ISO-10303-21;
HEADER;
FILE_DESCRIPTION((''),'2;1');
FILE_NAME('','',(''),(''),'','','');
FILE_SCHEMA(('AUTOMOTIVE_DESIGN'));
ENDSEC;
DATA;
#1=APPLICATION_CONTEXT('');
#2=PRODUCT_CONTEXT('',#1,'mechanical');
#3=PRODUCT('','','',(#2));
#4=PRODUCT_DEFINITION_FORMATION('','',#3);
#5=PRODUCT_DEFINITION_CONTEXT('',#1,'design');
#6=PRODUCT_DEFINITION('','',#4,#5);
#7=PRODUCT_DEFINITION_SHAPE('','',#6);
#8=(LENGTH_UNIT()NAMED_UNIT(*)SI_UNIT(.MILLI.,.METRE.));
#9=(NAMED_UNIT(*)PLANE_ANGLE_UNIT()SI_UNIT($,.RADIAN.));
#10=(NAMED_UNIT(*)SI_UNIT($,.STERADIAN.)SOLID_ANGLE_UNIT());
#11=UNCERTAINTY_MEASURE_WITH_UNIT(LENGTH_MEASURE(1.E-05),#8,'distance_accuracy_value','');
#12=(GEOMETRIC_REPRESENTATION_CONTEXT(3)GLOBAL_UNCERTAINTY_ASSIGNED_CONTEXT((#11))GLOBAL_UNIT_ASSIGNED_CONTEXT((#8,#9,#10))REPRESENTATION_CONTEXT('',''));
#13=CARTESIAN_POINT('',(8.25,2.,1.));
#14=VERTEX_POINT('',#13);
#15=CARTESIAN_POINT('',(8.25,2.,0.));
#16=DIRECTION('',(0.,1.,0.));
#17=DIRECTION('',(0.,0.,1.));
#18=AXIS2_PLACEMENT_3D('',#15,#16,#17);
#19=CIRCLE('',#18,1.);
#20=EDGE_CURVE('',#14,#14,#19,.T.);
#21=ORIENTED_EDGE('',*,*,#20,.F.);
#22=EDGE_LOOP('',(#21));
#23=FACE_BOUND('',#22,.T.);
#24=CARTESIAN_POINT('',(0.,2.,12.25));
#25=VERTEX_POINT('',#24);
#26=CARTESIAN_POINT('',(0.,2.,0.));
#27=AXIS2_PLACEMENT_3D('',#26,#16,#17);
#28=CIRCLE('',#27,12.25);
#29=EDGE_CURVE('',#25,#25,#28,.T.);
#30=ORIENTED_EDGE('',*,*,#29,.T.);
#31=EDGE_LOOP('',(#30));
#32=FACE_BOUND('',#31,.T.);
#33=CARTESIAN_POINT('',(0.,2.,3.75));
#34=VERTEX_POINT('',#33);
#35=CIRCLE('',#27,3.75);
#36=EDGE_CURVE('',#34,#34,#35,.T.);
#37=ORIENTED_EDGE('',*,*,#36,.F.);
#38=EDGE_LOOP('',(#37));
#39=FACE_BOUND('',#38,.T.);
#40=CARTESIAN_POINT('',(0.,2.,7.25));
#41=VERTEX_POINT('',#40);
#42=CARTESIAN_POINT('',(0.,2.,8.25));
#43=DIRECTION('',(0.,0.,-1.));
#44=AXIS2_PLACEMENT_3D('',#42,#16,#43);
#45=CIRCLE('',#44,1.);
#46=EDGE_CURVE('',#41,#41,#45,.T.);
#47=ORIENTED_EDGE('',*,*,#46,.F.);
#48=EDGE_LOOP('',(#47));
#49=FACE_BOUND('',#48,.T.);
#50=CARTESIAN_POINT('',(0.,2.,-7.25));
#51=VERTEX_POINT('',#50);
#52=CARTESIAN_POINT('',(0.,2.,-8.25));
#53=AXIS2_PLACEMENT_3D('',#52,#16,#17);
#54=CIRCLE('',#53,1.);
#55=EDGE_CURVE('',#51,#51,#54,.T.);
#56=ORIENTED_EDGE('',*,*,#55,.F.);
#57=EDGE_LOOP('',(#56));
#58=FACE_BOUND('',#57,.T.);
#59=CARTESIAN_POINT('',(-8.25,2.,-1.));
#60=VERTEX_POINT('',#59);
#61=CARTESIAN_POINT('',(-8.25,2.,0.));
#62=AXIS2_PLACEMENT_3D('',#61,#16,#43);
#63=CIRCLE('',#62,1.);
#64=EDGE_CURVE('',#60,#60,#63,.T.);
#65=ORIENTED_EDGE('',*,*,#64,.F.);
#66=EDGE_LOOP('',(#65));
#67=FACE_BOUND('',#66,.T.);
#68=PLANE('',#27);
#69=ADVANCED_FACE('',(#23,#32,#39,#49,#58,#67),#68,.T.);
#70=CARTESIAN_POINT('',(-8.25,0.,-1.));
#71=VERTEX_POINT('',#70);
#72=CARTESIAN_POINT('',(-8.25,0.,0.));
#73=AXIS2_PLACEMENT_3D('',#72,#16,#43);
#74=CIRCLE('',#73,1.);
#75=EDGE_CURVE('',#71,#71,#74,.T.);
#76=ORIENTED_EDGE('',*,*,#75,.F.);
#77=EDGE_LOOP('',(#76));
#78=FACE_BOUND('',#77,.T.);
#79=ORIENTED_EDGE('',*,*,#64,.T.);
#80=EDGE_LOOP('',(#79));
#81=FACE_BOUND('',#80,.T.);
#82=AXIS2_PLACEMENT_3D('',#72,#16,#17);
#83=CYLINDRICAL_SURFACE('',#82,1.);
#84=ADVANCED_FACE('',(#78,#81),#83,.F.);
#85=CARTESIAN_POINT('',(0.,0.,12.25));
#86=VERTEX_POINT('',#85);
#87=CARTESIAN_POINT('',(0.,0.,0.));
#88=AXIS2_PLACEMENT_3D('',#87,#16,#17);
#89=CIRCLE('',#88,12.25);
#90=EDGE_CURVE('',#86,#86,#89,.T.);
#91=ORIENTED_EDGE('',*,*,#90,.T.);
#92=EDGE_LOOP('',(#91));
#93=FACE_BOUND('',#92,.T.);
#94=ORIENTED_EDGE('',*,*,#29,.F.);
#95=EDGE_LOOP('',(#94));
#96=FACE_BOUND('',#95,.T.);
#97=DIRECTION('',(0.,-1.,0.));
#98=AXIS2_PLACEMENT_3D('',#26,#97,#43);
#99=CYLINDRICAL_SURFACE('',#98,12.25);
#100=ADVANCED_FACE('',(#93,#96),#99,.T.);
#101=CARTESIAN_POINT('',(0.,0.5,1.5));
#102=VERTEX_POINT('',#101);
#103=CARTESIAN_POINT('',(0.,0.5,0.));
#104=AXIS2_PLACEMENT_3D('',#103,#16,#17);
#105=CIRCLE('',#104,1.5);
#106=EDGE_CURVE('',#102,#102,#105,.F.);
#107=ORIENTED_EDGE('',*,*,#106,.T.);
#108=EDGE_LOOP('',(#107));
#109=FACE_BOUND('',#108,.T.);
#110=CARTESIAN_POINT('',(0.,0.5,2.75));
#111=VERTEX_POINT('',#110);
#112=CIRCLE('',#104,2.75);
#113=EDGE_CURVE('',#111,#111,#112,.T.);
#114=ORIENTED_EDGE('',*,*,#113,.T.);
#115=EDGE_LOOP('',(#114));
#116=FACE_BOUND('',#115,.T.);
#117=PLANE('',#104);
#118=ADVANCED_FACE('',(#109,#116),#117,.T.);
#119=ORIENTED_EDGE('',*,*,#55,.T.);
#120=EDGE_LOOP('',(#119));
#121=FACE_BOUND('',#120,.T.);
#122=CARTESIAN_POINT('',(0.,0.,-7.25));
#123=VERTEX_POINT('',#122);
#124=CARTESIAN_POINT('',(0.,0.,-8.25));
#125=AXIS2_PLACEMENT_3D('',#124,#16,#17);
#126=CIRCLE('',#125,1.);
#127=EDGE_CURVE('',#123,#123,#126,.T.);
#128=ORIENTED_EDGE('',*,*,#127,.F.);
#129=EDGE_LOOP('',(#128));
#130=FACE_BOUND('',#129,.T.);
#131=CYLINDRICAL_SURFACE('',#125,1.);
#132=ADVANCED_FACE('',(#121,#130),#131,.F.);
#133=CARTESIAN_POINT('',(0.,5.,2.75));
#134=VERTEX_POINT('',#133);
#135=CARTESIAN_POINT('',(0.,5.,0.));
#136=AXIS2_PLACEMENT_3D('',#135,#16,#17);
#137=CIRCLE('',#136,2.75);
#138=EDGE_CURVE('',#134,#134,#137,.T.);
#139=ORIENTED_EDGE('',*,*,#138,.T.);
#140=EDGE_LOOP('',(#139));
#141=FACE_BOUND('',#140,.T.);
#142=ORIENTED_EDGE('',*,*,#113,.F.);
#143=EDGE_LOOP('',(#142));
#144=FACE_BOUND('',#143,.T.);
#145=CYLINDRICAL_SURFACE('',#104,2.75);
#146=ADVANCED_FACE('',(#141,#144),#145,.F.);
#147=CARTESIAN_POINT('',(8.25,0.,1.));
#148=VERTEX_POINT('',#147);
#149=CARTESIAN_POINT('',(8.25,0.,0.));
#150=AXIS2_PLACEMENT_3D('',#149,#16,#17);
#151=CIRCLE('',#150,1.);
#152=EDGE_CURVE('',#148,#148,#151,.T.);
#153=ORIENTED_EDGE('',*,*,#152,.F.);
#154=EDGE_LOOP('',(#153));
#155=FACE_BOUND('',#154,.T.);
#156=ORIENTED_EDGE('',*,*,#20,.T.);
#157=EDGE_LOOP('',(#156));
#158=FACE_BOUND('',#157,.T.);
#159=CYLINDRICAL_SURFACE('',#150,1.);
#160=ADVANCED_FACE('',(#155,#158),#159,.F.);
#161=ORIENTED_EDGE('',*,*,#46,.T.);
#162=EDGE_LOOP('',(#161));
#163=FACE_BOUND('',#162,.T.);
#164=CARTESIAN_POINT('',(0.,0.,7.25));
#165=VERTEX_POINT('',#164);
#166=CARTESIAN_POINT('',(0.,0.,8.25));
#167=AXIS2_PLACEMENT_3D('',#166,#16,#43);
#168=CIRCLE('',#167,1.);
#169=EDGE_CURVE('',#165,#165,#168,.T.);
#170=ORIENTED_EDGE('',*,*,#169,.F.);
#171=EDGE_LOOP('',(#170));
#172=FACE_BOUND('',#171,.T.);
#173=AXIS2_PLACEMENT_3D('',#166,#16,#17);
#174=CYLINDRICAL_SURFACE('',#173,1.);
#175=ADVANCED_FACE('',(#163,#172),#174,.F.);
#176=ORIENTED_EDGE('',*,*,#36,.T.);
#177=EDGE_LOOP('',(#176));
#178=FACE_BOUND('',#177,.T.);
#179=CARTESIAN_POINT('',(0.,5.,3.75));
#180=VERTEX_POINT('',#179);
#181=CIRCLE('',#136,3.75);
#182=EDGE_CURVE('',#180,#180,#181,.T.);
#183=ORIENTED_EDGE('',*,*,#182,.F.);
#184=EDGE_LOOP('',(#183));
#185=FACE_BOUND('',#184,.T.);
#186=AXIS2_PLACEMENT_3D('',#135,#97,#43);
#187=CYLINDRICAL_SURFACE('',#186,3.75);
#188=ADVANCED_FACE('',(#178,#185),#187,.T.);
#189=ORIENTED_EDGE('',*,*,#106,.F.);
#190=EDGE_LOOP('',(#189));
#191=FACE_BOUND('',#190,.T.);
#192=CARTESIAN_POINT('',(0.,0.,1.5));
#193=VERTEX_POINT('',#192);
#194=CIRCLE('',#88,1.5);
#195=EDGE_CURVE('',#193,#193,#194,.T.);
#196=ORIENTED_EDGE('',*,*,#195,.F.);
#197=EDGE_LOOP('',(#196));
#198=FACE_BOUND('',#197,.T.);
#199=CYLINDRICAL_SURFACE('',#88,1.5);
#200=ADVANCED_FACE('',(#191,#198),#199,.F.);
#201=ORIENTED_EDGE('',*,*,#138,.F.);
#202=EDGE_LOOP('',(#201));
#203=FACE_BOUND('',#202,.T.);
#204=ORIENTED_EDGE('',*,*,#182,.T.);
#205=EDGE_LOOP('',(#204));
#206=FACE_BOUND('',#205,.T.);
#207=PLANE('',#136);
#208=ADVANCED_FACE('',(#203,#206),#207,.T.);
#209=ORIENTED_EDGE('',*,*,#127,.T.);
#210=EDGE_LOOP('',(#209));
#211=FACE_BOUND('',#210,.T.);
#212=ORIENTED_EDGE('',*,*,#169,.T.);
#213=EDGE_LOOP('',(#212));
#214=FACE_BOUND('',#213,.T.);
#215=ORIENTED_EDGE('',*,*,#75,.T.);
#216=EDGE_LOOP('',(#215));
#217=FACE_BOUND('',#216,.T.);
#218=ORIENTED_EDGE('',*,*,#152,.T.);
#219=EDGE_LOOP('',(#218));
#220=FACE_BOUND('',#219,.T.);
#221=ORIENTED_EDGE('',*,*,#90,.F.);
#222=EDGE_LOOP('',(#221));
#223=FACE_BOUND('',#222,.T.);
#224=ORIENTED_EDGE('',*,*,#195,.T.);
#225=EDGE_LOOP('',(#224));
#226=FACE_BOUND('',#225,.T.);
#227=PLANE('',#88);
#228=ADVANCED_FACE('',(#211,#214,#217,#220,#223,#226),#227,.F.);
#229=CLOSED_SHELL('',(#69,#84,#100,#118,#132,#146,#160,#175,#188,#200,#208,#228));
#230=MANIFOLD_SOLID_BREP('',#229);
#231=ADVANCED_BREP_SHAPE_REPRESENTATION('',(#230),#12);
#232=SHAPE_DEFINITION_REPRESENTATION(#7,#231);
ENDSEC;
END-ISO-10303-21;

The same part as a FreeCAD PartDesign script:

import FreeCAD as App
import Part
import Sketcher

V = App.Vector

doc = App.newDocument("Part")
params = doc.addObject("Spreadsheet::Sheet", "Params")
for row, (alias, value) in enumerate([
    ("sketch1_diameter", "24.5 mm"),
    ("pad1_length", "2 mm"),
    ("sketch2_diameter", "2 mm"),
    ("sketch3_diameter", "7.5 mm"),
    ("pad2_length", "3 mm"),
    ("sketch4_diameter", "3 mm"),
    ("sketch5_diameter", "5.5 mm"),
    ("pocket3_length", "4.5 mm"),
], start=1):
    params.set(f"A{row}", alias)
    params.set(f"B{row}", "=" + value)
    params.setAlias(f"B{row}", alias)

body = doc.addObject("PartDesign::Body", "Body")

# Sketch on XZ plane
sketch1 = body.newObject("Sketcher::SketchObject", "Sketch")
sketch1.AttachmentSupport = (doc.getObject("XZ_Plane"), [""])
sketch1.MapMode = "FlatFace"
sketch1.addGeometry(Part.Circle(V(0, 0, 0), V(0, 0, 1), 12.25), False)
sketch1.addConstraint(Sketcher.Constraint("Coincident", 0, 3, -1, 1))
sketch1.addConstraint(Sketcher.Constraint("Diameter", 0, 24.5))
sketch1.setExpression("Constraints[1]", "Params.sketch1_diameter")
pad1 = body.newObject("PartDesign::Pad", "Pad")
pad1.Profile = sketch1
pad1.setExpression("Length", "Params.pad1_length")
pad1.Reversed = True

# Sketch on XZ plane
sketch2 = body.newObject("Sketcher::SketchObject", "Sketch001")
sketch2.AttachmentSupport = (doc.getObject("XZ_Plane"), [""])
sketch2.MapMode = "FlatFace"
sketch2.AttachmentOffset = App.Placement(V(0, 0, -2), App.Rotation())
sketch2.addGeometry(Part.Circle(V(0, -8.25, 0), V(0, 0, 1), 1), False)
sketch2.addGeometry(Part.Circle(V(8.25, 0, 0), V(0, 0, 1), 1), False)
sketch2.addGeometry(Part.Circle(V(0, 8.25, 0), V(0, 0, 1), 1), False)
sketch2.addGeometry(Part.Circle(V(-8.25, 0, 0), V(0, 0, 1), 1), False)
sketch2.addConstraint(Sketcher.Constraint("Equal", 0, 1))
sketch2.addConstraint(Sketcher.Constraint("Equal", 1, 2))
sketch2.addConstraint(Sketcher.Constraint("Equal", 2, 3))
sketch2.addConstraint(Sketcher.Constraint("Symmetric", 0, 3, 2, 3, -1, 1))
sketch2.addConstraint(Sketcher.Constraint("Symmetric", 1, 3, 3, 3, -1, 1))
sketch2.addConstraint(Sketcher.Constraint("PointOnObject", 0, 3, -2))
sketch2.addConstraint(Sketcher.Constraint("PointOnObject", 1, 3, -1))
sketch2.addConstraint(Sketcher.Constraint("Diameter", 0, 2.0))
sketch2.addConstraint(Sketcher.Constraint("DistanceY", 0, 3, 2, 3, 16.5))
sketch2.addConstraint(Sketcher.Constraint("DistanceX", 3, 3, 1, 3, 16.5))
sketch2.setExpression("Constraints[7]", "Params.sketch2_diameter")
pocket1 = body.newObject("PartDesign::Pocket", "Pocket")
pocket1.Profile = sketch2
pocket1.Type = "ThroughAll"
pocket1.Reversed = True

# Sketch on XZ plane
sketch3 = body.newObject("Sketcher::SketchObject", "Sketch002")
sketch3.AttachmentSupport = (doc.getObject("XZ_Plane"), [""])
sketch3.MapMode = "FlatFace"
sketch3.AttachmentOffset = App.Placement(V(0, 0, -2), App.Rotation())
sketch3.addGeometry(Part.Circle(V(0, 0, 0), V(0, 0, 1), 3.75), False)
sketch3.addConstraint(Sketcher.Constraint("Coincident", 0, 3, -1, 1))
sketch3.addConstraint(Sketcher.Constraint("Diameter", 0, 7.5))
sketch3.setExpression("Constraints[1]", "Params.sketch3_diameter")
pad2 = body.newObject("PartDesign::Pad", "Pad001")
pad2.Profile = sketch3
pad2.setExpression("Length", "Params.pad2_length")
pad2.Reversed = True

# Sketch on XZ plane
sketch4 = body.newObject("Sketcher::SketchObject", "Sketch003")
sketch4.AttachmentSupport = (doc.getObject("XZ_Plane"), [""])
sketch4.MapMode = "FlatFace"
sketch4.AttachmentOffset = App.Placement(V(0, 0, -5), App.Rotation())
sketch4.addGeometry(Part.Circle(V(0, 0, 0), V(0, 0, 1), 1.5), False)
sketch4.addConstraint(Sketcher.Constraint("Coincident", 0, 3, -1, 1))
sketch4.addConstraint(Sketcher.Constraint("Diameter", 0, 3.0))
sketch4.setExpression("Constraints[1]", "Params.sketch4_diameter")
pocket2 = body.newObject("PartDesign::Pocket", "Pocket001")
pocket2.Profile = sketch4
pocket2.Type = "ThroughAll"
pocket2.Reversed = True

# Sketch on XZ plane
sketch5 = body.newObject("Sketcher::SketchObject", "Sketch004")
sketch5.AttachmentSupport = (doc.getObject("XZ_Plane"), [""])
sketch5.MapMode = "FlatFace"
sketch5.AttachmentOffset = App.Placement(V(0, 0, -5), App.Rotation())
sketch5.addGeometry(Part.Circle(V(0, 0, 0), V(0, 0, 1), 2.75), False)
sketch5.addConstraint(Sketcher.Constraint("Coincident", 0, 3, -1, 1))
sketch5.addConstraint(Sketcher.Constraint("Diameter", 0, 5.5))
sketch5.setExpression("Constraints[1]", "Params.sketch5_diameter")
pocket3 = body.newObject("PartDesign::Pocket", "Pocket002")
pocket3.Profile = sketch5
pocket3.setExpression("Length", "Params.pocket3_length")
pocket3.Reversed = True

doc.recompute()
